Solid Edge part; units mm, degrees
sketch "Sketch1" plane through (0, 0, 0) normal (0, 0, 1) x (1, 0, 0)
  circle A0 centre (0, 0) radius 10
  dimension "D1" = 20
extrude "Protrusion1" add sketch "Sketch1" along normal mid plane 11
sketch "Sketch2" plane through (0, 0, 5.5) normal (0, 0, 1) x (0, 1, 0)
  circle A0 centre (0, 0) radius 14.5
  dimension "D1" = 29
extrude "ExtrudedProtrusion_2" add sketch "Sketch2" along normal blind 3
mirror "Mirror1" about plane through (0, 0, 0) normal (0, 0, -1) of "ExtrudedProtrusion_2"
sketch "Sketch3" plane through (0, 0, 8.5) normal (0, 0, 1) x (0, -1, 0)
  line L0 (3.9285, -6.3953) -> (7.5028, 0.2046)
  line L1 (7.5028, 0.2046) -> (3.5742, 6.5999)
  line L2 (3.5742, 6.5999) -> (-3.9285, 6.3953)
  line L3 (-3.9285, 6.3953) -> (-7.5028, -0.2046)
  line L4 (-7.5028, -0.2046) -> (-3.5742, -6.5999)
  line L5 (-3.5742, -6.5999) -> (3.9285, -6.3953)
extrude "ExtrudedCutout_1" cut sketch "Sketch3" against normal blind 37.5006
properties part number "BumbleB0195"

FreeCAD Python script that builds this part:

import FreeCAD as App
import Part
import Sketcher
Q = App.Units.Quantity

doc = App.newDocument("Part")
body = doc.addObject("PartDesign::Body", "Body")

sketch1 = body.newObject("Sketcher::SketchObject", "Sketch")
sketch1.AttachmentSupport = (doc.getObject("XY_Plane"), [""])
sketch1.MapMode = "FlatFace"
sketch1.addGeometry(Part.Circle(App.Vector(0, 0, 0), App.Vector(0, 0, 1), 10), False)
sketch1.addConstraint([
    Sketcher.Constraint("Coincident", 0, 3, -1, 1),
    Sketcher.Constraint("Diameter", 0, Q("20 mm")),
])
pad1 = body.newObject("PartDesign::Pad", "Pad")
pad1.Profile = sketch1
pad1.Length = 11
pad1.Midplane = True

sketch2 = body.newObject("Sketcher::SketchObject", "Sketch001")
sketch2.AttachmentSupport = (doc.getObject("XY_Plane"), [""])
sketch2.MapMode = "FlatFace"
sketch2.AttachmentOffset = App.Placement(App.Vector(0, 0, 5.5), App.Rotation())
sketch2.addGeometry(Part.Circle(App.Vector(0, 0, 0), App.Vector(0, 0, 1), 14), False)
sketch2.addConstraint([
    Sketcher.Constraint("Coincident", 0, 3, -1, 1),
    Sketcher.Constraint("Diameter", 0, Q("29 mm")),
])
pad2 = body.newObject("PartDesign::Pad", "Pad001")
pad2.Profile = sketch2
pad2.Length = 3
doc.recompute()

mirrored = body.newObject("PartDesign::Mirrored", "Mirrored")
mirrored.Originals = [pad2]
mirrored.MirrorPlane = (doc.getObject("XY_Plane"), [""])
body.Tip = mirrored

sketch3 = body.newObject("Sketcher::SketchObject", "Sketch002")
sketch3.AttachmentSupport = (doc.getObject("XY_Plane"), [""])
sketch3.MapMode = "FlatFace"
sketch3.AttachmentOffset = App.Placement(App.Vector(0, 0, 8.5), App.Rotation())
sketch3.addGeometry([
    Part.LineSegment(App.Vector(-7, 4, 0), App.Vector(-6, -4, 0)),
    Part.LineSegment(App.Vector(-6, -4, 0), App.Vector(0, -8, 0)),
    Part.LineSegment(App.Vector(0, -8, 0), App.Vector(7, -4, 0)),
    Part.LineSegment(App.Vector(7, -4, 0), App.Vector(6, 4, 0)),
    Part.LineSegment(App.Vector(6, 4, 0), App.Vector(0, 8, 0)),
    Part.LineSegment(App.Vector(0, 8, 0), App.Vector(-7, 4, 0)),
], False)
sketch3.addConstraint([
    Sketcher.Constraint("Coincident", 0, 2, 1, 1),
    Sketcher.Constraint("Coincident", 1, 2, 2, 1),
    Sketcher.Constraint("Coincident", 2, 2, 3, 1),
    Sketcher.Constraint("Coincident", 3, 2, 4, 1),
    Sketcher.Constraint("Coincident", 4, 2, 5, 1),
    Sketcher.Constraint("Coincident", 5, 2, 0, 1),
    Sketcher.Constraint("Symmetric", 0, 2, 3, 2, -1, 1),
    Sketcher.Constraint("Symmetric", 1, 2, 4, 2, -1, 1),
    Sketcher.Constraint("Symmetric", 2, 2, 5, 2, -1, 1),
    Sketcher.Constraint("Equal", 0, 1),
    Sketcher.Constraint("Equal", 1, 2),
    Sketcher.Constraint("DistanceX", -1, 1, 2, 2, Q("6.6 mm")),
    Sketcher.Constraint("DistanceX", 0, 2, 1, 2, Q("6.6 mm")),
    Sketcher.Constraint("DistanceY", 0, 2, 3, 2, Q("7.857 mm")),
    Sketcher.Constraint("DistanceY", 2, 2, 4, 2, Q("11.077 mm")),
])
pocket1 = body.newObject("PartDesign::Pocket", "Pocket")
pocket1.Profile = sketch3
pocket1.Length = 37.5006

doc.recompute()
